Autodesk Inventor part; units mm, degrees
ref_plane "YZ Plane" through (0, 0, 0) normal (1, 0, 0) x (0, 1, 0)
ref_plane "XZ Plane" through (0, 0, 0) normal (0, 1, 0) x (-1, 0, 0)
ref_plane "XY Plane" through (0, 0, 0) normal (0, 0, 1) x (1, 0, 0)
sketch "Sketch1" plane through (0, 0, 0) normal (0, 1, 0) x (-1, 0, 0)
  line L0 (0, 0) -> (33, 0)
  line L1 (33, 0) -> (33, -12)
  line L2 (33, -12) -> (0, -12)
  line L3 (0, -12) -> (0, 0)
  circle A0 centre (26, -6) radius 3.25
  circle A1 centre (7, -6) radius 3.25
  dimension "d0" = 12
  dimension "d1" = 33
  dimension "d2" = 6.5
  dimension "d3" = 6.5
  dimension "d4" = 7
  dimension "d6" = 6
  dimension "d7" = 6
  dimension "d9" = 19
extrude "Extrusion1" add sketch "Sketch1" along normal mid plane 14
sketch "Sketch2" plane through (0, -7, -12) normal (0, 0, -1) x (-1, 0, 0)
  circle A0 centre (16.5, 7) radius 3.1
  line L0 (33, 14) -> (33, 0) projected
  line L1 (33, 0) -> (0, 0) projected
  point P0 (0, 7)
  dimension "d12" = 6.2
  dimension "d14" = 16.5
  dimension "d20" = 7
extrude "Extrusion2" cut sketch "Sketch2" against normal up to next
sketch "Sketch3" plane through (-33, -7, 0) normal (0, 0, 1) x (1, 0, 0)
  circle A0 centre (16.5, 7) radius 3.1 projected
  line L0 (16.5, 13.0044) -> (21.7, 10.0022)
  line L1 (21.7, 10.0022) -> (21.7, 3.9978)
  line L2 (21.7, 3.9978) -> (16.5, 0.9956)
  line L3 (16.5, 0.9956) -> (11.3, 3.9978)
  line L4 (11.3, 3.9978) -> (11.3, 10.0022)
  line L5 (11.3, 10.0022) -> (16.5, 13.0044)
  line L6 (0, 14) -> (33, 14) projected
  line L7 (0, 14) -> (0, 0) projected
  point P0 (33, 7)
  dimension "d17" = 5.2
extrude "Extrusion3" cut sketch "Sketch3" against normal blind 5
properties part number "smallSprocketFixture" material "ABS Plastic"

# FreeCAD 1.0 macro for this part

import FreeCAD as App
import Part
import Sketcher
from FreeCAD import Vector
Q = App.Units.Quantity

doc = App.newDocument("Part")
params = doc.addObject("Spreadsheet::Sheet", "Params")
for row, (alias, value) in enumerate([
    ("sketch1_diameter", "6.5 mm"),
    ("sketch1_width", "33 mm"),
    ("sketch1_height", "12 mm"),
    ("pad1_length", "14 mm"),
    ("sketch2_diameter", "6.2 mm"),
    ("sketch3_diameter", "6.2 mm"),
    ("pocket2_length", "5 mm"),
], start=1):
    params.set(f"A{row}", alias)
    params.set(f"B{row}", "=" + value)
    params.setAlias(f"B{row}", alias)

body = doc.addObject("PartDesign::Body", "Body")

# Sketch on XZ plane
sketch1 = body.newObject("Sketcher::SketchObject", "Sketch")
sketch1.AttachmentSupport = (doc.getObject("XZ_Plane"), [""])
sketch1.MapMode = "FlatFace"
sketch1.addGeometry([
    Part.LineSegment(Vector(-33, 0, 0), Vector(0, 0, 0)),  # 0
    Part.LineSegment(Vector(0, 0, 0), Vector(0, -12, 0)),  # 1
    Part.LineSegment(Vector(0, -12, 0), Vector(-33, -12, 0)),  # 2
    Part.LineSegment(Vector(-33, -12, 0), Vector(-33, 0, 0)),  # 3
    Part.Circle(Vector(-7, -6, 0), Vector(0, 0, 1), 3.2),  # 4
    Part.Circle(Vector(-26, -6, 0), Vector(0, 0, 1), 3.2),  # 5
], False)
sketch1.addConstraint([
    Sketcher.Constraint("Coincident", 0, 2, 1, 1),
    Sketcher.Constraint("Coincident", 1, 2, 2, 1),
    Sketcher.Constraint("Coincident", 2, 2, 3, 1),
    Sketcher.Constraint("Coincident", 3, 2, 0, 1),
    Sketcher.Constraint("Horizontal", 0),
    Sketcher.Constraint("Vertical", 1),
    Sketcher.Constraint("Horizontal", 2),
    Sketcher.Constraint("Vertical", 3),
    Sketcher.Constraint("Coincident", 0, 2, -1, 1),
    Sketcher.Constraint("Equal", 4, 5),
    Sketcher.Constraint("Horizontal", 4, 3, 5, 3),
    Sketcher.Constraint("Diameter", 4, Q("6.5 mm")),
    Sketcher.Constraint("DistanceX", 0, 1, 0, 2, Q("33 mm")),
    Sketcher.Constraint("DistanceY", 1, 2, 1, 1, Q("12 mm")),
    Sketcher.Constraint("DistanceX", 4, 3, -1, 1, Q("7 mm")),
    Sketcher.Constraint("DistanceY", 4, 3, -1, 1, Q("6 mm")),
    Sketcher.Constraint("DistanceX", 5, 3, 4, 3, Q("19 mm")),
])
sketch1.setExpression("Constraints[11]", "Params.sketch1_diameter")
sketch1.setExpression("Constraints[12]", "Params.sketch1_width")
sketch1.setExpression("Constraints[13]", "Params.sketch1_height")
pad1 = body.newObject("PartDesign::Pad", "Pad")
pad1.Profile = sketch1
pad1.setExpression("Length", "Params.pad1_length")
pad1.Midplane = True

# Sketch on XY plane
sketch2 = body.newObject("Sketcher::SketchObject", "Sketch001")
sketch2.AttachmentSupport = (doc.getObject("XY_Plane"), [""])
sketch2.MapMode = "FlatFace"
sketch2.AttachmentOffset = App.Placement(Vector(0, 0, -12), App.Rotation())
sketch2.addGeometry(Part.Circle(Vector(-16.5, 0, 0), Vector(0, 0, 1), 3.1), False)
sketch2.addConstraint([
    Sketcher.Constraint("PointOnObject", 0, 3, -1),
    Sketcher.Constraint("Diameter", 0, Q("6.2 mm")),
    Sketcher.Constraint("DistanceX", 0, 3, -1, 1, Q("16.5 mm")),
])
sketch2.setExpression("Constraints[1]", "Params.sketch2_diameter")
pocket1 = body.newObject("PartDesign::Pocket", "Pocket")
pocket1.Profile = sketch2
pocket1.Type = "UpToFirst"
pocket1.Reversed = True

# Sketch on XY plane
sketch3 = body.newObject("Sketcher::SketchObject", "Sketch002")
sketch3.AttachmentSupport = (doc.getObject("XY_Plane"), [""])
sketch3.MapMode = "FlatFace"
sketch3.addGeometry([
    Part.LineSegment(Vector(-11.3, 3, 0), Vector(-16.5, 6, 0)),  # 0
    Part.LineSegment(Vector(-16.5, 6, 0), Vector(-21.7, 3, 0)),  # 1
    Part.LineSegment(Vector(-21.7, 3, 0), Vector(-21.7, -3, 0)),  # 2
    Part.LineSegment(Vector(-21.7, -3, 0), Vector(-16.5, -6, 0)),  # 3
    Part.LineSegment(Vector(-16.5, -6, 0), Vector(-11.3, -3, 0)),  # 4
    Part.LineSegment(Vector(-11.3, -3, 0), Vector(-11.3, 3, 0)),  # 5
    Part.Circle(Vector(-16.5, 0, 0), Vector(0, 0, 1), 3.1),  # 6
], False)
sketch3.addConstraint([
    Sketcher.Constraint("Coincident", 0, 2, 1, 1),
    Sketcher.Constraint("Coincident", 1, 2, 2, 1),
    Sketcher.Constraint("Coincident", 2, 2, 3, 1),
    Sketcher.Constraint("Coincident", 3, 2, 4, 1),
    Sketcher.Constraint("Coincident", 4, 2, 5, 1),
    Sketcher.Constraint("Coincident", 5, 2, 0, 1),
    Sketcher.Constraint("Vertical", 2),
    Sketcher.Constraint("Vertical", 5),
    Sketcher.Constraint("Symmetric", 0, 2, 3, 2, -1),
    Sketcher.Constraint("PointOnObject", 6, 3, -1),
    Sketcher.Constraint("Parallel", 0, 3),
    Sketcher.Constraint("Parallel", 1, 4),
    Sketcher.Constraint("Horizontal", 2, 2, 4, 2),
    Sketcher.Constraint("Horizontal", 1, 2, 5, 2),
    Sketcher.Constraint("Vertical", 6, 3, 0, 2),
    Sketcher.Constraint("Diameter", 6, Q("6.2 mm")),
    Sketcher.Constraint("DistanceX", 1, 2, 6, 3, Q("5.2 mm")),
    Sketcher.Constraint("Angle", 0, Q("150.0002 deg")),
    Sketcher.Constraint("DistanceX", 6, 3, -1, 1, Q("16.5 mm")),
    Sketcher.Constraint("DistanceY", 2, 2, 2, 1, Q("6.0044 mm")),
])
sketch3.setExpression("Constraints[15]", "Params.sketch3_diameter")
pocket2 = body.newObject("PartDesign::Pocket", "Pocket001")
pocket2.Profile = sketch3
pocket2.setExpression("Length", "Params.pocket2_length")

doc.recompute()
